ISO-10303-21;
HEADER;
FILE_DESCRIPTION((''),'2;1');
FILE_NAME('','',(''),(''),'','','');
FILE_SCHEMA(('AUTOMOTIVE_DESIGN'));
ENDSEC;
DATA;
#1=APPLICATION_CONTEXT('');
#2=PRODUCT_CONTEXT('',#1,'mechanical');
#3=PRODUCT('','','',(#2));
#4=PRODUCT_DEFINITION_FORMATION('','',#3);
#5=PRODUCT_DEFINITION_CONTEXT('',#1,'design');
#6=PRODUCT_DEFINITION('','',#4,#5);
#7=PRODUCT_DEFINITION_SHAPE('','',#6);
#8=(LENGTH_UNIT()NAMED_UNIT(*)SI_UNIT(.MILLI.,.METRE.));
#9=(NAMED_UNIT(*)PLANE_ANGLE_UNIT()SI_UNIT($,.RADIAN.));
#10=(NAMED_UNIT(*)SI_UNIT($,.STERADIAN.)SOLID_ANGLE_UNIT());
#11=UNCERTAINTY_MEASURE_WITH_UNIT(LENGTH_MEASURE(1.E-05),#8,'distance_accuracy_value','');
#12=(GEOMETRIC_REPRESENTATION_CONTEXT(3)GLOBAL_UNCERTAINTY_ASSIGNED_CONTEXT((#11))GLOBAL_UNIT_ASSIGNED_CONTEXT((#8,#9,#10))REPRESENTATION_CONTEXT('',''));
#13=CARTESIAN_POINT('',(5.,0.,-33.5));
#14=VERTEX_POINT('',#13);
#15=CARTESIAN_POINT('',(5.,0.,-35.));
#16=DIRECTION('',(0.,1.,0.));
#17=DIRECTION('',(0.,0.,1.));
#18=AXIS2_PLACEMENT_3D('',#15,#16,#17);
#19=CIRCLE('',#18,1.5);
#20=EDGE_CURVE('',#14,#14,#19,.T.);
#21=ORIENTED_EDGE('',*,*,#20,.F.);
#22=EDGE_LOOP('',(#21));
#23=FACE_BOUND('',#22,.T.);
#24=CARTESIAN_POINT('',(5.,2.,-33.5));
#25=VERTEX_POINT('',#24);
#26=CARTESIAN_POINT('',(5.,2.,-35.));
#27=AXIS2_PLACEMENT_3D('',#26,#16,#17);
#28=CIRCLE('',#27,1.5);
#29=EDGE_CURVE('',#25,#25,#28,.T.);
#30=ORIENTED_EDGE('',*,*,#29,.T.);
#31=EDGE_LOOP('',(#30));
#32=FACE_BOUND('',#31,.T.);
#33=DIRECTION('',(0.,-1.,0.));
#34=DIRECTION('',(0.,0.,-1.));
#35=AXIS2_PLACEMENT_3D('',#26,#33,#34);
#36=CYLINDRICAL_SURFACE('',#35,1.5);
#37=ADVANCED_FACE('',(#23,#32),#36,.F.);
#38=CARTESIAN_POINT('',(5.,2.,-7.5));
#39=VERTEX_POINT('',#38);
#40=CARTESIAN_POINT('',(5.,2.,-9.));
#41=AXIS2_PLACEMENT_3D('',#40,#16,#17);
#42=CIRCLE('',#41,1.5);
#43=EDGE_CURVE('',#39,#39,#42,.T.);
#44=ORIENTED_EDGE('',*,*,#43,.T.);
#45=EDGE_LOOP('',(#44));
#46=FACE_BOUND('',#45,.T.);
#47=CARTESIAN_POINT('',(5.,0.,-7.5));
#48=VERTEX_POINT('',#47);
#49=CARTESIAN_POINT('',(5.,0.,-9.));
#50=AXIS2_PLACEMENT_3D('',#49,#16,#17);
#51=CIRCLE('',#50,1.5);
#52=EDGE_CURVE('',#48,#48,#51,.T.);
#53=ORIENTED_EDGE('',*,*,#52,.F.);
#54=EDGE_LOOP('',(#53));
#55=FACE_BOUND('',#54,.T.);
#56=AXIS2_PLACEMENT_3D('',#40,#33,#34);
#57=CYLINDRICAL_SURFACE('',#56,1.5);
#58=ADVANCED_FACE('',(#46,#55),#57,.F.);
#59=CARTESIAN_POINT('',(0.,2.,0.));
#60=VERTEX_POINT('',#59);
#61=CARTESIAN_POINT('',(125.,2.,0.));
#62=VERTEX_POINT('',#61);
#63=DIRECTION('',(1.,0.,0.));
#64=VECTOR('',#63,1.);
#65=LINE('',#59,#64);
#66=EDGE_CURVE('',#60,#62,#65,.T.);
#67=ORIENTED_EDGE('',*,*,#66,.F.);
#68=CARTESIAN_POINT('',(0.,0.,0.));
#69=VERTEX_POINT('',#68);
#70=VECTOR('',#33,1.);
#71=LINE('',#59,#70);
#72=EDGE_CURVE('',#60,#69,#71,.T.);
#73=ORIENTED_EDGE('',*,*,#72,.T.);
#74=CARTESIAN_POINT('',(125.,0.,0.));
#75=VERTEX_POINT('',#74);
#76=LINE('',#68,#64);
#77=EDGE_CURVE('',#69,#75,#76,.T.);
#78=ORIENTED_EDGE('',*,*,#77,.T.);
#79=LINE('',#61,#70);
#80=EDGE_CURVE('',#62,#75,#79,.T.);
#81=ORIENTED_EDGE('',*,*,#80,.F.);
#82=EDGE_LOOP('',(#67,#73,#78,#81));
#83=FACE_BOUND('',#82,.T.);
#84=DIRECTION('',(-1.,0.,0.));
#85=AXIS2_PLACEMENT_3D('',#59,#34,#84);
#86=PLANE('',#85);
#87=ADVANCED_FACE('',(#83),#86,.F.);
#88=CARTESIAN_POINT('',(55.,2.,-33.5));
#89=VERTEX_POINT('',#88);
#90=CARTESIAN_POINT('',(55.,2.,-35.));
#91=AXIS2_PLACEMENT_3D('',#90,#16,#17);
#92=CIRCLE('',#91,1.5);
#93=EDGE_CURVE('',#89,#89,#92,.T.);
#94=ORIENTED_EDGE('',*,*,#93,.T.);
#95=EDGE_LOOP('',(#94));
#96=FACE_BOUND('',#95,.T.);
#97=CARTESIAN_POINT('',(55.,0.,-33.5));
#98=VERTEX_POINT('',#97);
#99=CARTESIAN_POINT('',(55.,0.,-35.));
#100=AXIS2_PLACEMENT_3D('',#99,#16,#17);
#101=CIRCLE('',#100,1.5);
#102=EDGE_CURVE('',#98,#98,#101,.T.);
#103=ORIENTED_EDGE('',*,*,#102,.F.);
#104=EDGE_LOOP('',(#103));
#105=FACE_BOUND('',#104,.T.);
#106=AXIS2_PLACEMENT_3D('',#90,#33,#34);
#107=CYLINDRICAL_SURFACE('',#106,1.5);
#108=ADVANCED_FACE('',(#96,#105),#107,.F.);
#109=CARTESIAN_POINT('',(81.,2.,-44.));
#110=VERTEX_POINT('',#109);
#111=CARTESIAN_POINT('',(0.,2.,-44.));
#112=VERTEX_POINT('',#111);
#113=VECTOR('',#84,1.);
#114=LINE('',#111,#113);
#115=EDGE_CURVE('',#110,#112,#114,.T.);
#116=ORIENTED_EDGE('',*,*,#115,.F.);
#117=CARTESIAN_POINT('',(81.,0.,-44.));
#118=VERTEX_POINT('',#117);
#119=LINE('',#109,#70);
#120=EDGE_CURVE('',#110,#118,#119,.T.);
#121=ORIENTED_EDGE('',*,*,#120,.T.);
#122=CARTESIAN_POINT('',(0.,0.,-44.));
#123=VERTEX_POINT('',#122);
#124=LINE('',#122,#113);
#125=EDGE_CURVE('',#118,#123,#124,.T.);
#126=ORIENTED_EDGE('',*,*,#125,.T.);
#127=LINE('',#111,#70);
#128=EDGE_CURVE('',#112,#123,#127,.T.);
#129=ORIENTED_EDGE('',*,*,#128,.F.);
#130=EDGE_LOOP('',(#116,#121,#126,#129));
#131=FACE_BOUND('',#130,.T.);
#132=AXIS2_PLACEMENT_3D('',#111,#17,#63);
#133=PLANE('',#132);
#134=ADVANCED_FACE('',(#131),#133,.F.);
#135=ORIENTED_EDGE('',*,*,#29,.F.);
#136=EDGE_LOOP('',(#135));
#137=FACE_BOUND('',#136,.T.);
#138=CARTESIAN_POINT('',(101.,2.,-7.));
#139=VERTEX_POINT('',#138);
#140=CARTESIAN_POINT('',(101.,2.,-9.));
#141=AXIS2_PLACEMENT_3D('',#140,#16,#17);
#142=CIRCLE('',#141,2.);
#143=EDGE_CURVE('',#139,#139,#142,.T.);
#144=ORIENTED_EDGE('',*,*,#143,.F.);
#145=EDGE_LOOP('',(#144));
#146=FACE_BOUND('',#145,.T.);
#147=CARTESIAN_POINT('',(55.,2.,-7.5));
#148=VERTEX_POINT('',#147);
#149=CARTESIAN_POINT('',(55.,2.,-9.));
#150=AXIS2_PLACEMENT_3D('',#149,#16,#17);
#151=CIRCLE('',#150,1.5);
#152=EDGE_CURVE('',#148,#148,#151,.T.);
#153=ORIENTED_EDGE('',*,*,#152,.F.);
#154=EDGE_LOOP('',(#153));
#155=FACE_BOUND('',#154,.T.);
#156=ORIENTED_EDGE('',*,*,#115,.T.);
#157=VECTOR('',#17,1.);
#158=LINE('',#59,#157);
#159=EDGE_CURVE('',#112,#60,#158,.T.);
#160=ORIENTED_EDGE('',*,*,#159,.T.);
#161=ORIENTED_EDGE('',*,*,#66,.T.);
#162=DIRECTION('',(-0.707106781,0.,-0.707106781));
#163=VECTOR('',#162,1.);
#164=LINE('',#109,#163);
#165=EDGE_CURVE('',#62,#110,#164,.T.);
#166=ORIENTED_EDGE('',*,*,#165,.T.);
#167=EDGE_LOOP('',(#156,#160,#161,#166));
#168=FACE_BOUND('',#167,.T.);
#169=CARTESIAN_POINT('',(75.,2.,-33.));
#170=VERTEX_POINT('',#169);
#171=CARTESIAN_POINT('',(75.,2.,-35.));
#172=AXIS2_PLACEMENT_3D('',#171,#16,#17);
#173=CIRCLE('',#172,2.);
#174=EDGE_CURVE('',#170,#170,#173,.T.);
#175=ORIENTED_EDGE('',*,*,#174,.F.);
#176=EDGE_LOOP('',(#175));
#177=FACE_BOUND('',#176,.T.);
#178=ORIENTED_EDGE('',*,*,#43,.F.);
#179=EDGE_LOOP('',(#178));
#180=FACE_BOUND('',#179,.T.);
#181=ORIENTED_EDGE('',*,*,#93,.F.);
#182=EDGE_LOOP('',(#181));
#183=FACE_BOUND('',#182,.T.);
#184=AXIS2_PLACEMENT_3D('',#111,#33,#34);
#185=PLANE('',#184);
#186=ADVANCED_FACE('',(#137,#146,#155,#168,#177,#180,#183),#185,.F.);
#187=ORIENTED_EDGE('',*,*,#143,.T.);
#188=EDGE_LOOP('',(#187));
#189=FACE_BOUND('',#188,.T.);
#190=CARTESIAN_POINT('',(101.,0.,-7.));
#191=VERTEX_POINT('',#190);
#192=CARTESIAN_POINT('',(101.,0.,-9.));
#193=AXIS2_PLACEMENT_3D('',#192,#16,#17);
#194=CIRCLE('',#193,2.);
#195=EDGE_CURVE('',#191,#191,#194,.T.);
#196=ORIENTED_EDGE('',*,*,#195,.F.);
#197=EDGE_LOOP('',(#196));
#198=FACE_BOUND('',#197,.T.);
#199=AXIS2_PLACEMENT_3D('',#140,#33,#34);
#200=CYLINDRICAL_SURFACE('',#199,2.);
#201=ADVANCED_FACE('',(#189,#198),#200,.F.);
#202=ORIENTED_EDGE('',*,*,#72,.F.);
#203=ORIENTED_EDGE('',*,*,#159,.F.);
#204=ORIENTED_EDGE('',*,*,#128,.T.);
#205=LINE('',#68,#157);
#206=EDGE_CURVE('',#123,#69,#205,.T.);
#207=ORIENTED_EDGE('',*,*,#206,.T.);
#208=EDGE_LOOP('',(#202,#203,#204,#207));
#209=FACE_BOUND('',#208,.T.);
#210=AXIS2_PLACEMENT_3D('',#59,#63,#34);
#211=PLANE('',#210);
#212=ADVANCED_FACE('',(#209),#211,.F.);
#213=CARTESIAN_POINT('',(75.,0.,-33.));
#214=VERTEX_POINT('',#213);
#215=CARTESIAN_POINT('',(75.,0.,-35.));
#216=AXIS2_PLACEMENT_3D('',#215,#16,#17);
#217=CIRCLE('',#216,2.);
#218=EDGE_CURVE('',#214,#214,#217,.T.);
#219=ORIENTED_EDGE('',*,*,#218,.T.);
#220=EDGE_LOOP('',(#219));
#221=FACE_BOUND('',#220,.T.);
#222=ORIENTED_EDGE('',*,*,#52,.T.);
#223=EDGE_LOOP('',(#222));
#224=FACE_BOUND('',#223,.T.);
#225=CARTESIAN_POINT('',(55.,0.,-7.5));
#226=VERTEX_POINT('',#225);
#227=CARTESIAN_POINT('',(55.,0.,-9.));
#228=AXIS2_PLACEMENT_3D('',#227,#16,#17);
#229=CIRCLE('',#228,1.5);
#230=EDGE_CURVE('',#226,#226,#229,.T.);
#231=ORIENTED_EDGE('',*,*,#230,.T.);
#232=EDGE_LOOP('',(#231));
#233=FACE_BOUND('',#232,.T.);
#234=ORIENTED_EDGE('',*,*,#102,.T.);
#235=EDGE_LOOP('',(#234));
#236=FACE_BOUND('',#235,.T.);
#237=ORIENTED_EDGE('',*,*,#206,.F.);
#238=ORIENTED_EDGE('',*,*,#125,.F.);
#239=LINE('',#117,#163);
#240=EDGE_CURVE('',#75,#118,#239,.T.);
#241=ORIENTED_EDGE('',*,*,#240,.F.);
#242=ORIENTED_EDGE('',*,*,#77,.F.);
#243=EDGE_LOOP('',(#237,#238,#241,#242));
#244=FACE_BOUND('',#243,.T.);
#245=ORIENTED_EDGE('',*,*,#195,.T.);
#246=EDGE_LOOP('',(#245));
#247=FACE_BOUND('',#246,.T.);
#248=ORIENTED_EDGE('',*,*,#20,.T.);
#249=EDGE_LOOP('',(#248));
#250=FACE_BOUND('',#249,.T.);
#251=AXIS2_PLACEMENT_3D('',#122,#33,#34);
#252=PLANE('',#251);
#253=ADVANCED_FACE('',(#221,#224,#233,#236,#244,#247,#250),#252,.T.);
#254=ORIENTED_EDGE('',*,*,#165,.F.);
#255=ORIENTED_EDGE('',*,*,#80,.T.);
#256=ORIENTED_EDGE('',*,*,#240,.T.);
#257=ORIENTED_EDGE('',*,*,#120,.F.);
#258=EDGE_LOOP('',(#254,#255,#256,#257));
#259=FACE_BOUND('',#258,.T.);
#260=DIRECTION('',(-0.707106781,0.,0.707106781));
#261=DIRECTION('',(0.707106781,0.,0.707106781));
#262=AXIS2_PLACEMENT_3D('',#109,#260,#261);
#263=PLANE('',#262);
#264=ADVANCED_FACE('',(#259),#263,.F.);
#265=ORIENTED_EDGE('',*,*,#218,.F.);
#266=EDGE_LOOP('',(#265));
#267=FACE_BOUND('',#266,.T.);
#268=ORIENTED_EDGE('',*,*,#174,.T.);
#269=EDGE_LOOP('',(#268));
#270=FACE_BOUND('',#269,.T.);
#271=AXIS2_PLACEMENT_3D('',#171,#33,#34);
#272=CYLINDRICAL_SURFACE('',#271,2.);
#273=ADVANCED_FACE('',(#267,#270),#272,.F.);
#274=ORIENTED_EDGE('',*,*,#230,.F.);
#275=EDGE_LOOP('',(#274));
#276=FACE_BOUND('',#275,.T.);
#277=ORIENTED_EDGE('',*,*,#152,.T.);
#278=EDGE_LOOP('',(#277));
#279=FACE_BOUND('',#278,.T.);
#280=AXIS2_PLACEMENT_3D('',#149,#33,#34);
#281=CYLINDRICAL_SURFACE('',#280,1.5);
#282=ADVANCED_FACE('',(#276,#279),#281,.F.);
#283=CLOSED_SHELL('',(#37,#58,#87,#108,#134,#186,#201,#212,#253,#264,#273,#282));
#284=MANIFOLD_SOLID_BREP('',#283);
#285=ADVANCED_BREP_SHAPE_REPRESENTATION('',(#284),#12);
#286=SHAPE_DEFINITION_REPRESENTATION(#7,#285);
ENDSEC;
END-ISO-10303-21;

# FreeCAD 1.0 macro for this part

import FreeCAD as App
import Part
import Sketcher
Q = App.Units.Quantity


def add_polygon(sketch, points):
    """Adds a closed chain of lines whose ends are joined by coincident constraints."""
    first, n = sketch.GeometryCount, len(points)
    for a, b in zip(points, points[1:] + points[:1]):
        sketch.addGeometry(Part.LineSegment(App.Vector(*a, 0), App.Vector(*b, 0)), False)
    for i in range(n):
        sketch.addConstraint(Sketcher.Constraint("Coincident", first + i, 2, first + (i + 1) % n, 1))

doc = App.newDocument("Part")
params = doc.addObject("Spreadsheet::Sheet", "Params")
for row, (alias, value) in enumerate([
    ("sketch1_diameter", "4 mm"),
    ("sketch1_diameter2", "3 mm"),
    ("sketch1_width", "81 mm"),
    ("sketch1_width2", "125 mm"),
    ("sketch1_height", "44 mm"),
    ("pad1_length", "2 mm"),
], start=1):
    params.set(f"A{row}", alias)
    params.set(f"B{row}", "=" + value)
    params.setAlias(f"B{row}", alias)

body = doc.addObject("PartDesign::Body", "Body")

# Sketch on XZ plane
sketch1 = body.newObject("Sketcher::SketchObject", "Sketch")
sketch1.AttachmentSupport = (doc.getObject("XZ_Plane"), [""])
sketch1.MapMode = "FlatFace"
add_polygon(sketch1, [(125, 0), (81, -44), (0, -44), (0, 0)])  # lines 0-3
sketch1.addGeometry(Part.Circle(App.Vector(101, -9, 0), App.Vector(0, 0, 1), 2), False)  # 4
sketch1.addGeometry(Part.Circle(App.Vector(55, -9, 0), App.Vector(0, 0, 1), 1.5), False)  # 5
sketch1.addGeometry(Part.Circle(App.Vector(5, -9, 0), App.Vector(0, 0, 1), 1.5), False)  # 6
sketch1.addGeometry(Part.Circle(App.Vector(75, -35, 0), App.Vector(0, 0, 1), 2), False)  # 7
sketch1.addGeometry(Part.Circle(App.Vector(55, -35, 0), App.Vector(0, 0, 1), 1.5), False)  # 8
sketch1.addGeometry(Part.Circle(App.Vector(5, -35, 0), App.Vector(0, 0, 1), 1.5), False)  # 9
sketch1.addConstraint(Sketcher.Constraint("Horizontal", 1))
sketch1.addConstraint(Sketcher.Constraint("Vertical", 2))
sketch1.addConstraint(Sketcher.Constraint("Horizontal", 3))
sketch1.addConstraint(Sketcher.Constraint("Coincident", 2, 2, -1, 1))
sketch1.addConstraint(Sketcher.Constraint("Equal", 5, 6))
sketch1.addConstraint(Sketcher.Constraint("Equal", 4, 7))
sketch1.addConstraint(Sketcher.Constraint("Equal", 6, 8))
sketch1.addConstraint(Sketcher.Constraint("Equal", 8, 9))
sketch1.addConstraint(Sketcher.Constraint("Horizontal", 4, 3, 5, 3))
sketch1.addConstraint(Sketcher.Constraint("Horizontal", 5, 3, 6, 3))
sketch1.addConstraint(Sketcher.Constraint("Horizontal", 7, 3, 8, 3))
sketch1.addConstraint(Sketcher.Constraint("Horizontal", 8, 3, 9, 3))
sketch1.addConstraint(Sketcher.Constraint("Vertical", 5, 3, 8, 3))
sketch1.addConstraint(Sketcher.Constraint("Vertical", 6, 3, 9, 3))
sketch1.addConstraint(Sketcher.Constraint("Diameter", 4, Q("4 mm")))
sketch1.addConstraint(Sketcher.Constraint("Diameter", 5, Q("3 mm")))
sketch1.addConstraint(Sketcher.Constraint("DistanceX", 1, 2, 1, 1, Q("81 mm")))
sketch1.addConstraint(Sketcher.Constraint("DistanceX", 3, 1, 3, 2, Q("125 mm")))
sketch1.addConstraint(Sketcher.Constraint("DistanceY", 2, 1, 2, 2, Q("44 mm")))
sketch1.addConstraint(Sketcher.Constraint("DistanceX", -1, 1, 4, 3, Q("101 mm")))
sketch1.addConstraint(Sketcher.Constraint("DistanceY", 4, 3, -1, 1, Q("9 mm")))
sketch1.addConstraint(Sketcher.Constraint("DistanceX", -1, 1, 5, 3, Q("55 mm")))
sketch1.addConstraint(Sketcher.Constraint("DistanceX", -1, 1, 6, 3, Q("5 mm")))
sketch1.addConstraint(Sketcher.Constraint("DistanceX", -1, 1, 7, 3, Q("75 mm")))
sketch1.addConstraint(Sketcher.Constraint("DistanceY", 7, 3, -1, 1, Q("35 mm")))
sketch1.setExpression("Constraints[18]", "Params.sketch1_diameter")
sketch1.setExpression("Constraints[19]", "Params.sketch1_diameter2")
sketch1.setExpression("Constraints[20]", "Params.sketch1_width")
sketch1.setExpression("Constraints[21]", "Params.sketch1_width2")
sketch1.setExpression("Constraints[22]", "Params.sketch1_height")
pad1 = body.newObject("PartDesign::Pad", "Pad")
pad1.Profile = sketch1
pad1.setExpression("Length", "Params.pad1_length")
pad1.Reversed = True

doc.recompute()
